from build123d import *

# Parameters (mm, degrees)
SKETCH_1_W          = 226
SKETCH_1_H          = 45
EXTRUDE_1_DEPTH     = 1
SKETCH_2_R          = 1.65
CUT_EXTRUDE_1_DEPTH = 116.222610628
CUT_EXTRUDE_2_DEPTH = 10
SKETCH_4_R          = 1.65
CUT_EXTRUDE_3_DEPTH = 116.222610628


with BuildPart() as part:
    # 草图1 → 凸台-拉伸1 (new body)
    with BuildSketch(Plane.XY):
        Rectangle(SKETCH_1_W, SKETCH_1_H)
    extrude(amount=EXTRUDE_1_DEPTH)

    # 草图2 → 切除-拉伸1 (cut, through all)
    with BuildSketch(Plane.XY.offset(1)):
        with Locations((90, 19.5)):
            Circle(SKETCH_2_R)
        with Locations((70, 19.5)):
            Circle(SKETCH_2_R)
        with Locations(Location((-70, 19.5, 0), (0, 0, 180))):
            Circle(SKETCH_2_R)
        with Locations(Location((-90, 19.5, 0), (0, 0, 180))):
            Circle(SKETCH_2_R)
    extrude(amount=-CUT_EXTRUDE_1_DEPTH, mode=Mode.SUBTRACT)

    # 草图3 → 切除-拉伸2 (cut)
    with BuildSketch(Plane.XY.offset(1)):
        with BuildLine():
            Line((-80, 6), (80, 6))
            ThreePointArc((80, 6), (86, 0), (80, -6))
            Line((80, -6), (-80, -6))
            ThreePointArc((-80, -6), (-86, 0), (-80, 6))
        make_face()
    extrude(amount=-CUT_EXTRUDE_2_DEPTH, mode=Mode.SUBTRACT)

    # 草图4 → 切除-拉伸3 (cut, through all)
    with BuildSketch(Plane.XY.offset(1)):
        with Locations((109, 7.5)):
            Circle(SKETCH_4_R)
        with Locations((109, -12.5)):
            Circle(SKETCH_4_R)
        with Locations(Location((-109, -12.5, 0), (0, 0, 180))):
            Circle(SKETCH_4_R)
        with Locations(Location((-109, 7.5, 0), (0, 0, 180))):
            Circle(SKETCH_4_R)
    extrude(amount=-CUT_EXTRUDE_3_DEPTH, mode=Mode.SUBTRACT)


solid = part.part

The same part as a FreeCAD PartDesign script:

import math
import FreeCAD as App
import Part
import Sketcher
Q = App.Units.Quantity

doc = App.newDocument("Part")
body = doc.addObject("PartDesign::Body", "Body")

sketch1 = body.newObject("Sketcher::SketchObject", "Sketch")
sketch1.AttachmentSupport = (doc.getObject("XY_Plane"), [""])
sketch1.MapMode = "FlatFace"
sketch1.addGeometry([
    Part.LineSegment(App.Vector(-113, 22, 0), App.Vector(-113, -22, 0)),
    Part.LineSegment(App.Vector(-113, -22, 0), App.Vector(113, -22, 0)),
    Part.LineSegment(App.Vector(113, -22, 0), App.Vector(113, 22, 0)),
    Part.LineSegment(App.Vector(113, 22, 0), App.Vector(-113, 22, 0)),
], False)
sketch1.addConstraint([
    Sketcher.Constraint("Coincident", 0, 2, 1, 1),
    Sketcher.Constraint("Coincident", 1, 2, 2, 1),
    Sketcher.Constraint("Coincident", 2, 2, 3, 1),
    Sketcher.Constraint("Coincident", 3, 2, 0, 1),
    Sketcher.Constraint("Vertical", 0),
    Sketcher.Constraint("Horizontal", 1),
    Sketcher.Constraint("Vertical", 2),
    Sketcher.Constraint("Horizontal", 3),
    Sketcher.Constraint("Symmetric", 0, 2, 2, 2, -1, 1),
    Sketcher.Constraint("DistanceX", 1, 1, 1, 2, Q("226 mm")),
    Sketcher.Constraint("DistanceY", 0, 2, 0, 1, Q("45 mm")),
])
pad1 = body.newObject("PartDesign::Pad", "Pad")
pad1.Profile = sketch1
pad1.Length = 1

sketch2 = body.newObject("Sketcher::SketchObject", "Sketch001")
sketch2.AttachmentSupport = (doc.getObject("XY_Plane"), [""])
sketch2.MapMode = "FlatFace"
sketch2.AttachmentOffset = App.Placement(App.Vector(0, 0, 1), App.Rotation())
sketch2.addGeometry([
    Part.Circle(App.Vector(90, 19.5, 0), App.Vector(0, 0, 1), 1.6),
    Part.Circle(App.Vector(70, 19.5, 0), App.Vector(0, 0, 1), 1.6),
    Part.Circle(App.Vector(-70, 19.5, 0), App.Vector(0, 0, 1), 1.6),
    Part.Circle(App.Vector(-90, 19.5, 0), App.Vector(0, 0, 1), 1.6),
], False)
sketch2.addConstraint([
    Sketcher.Constraint("Equal", 0, 1),
    Sketcher.Constraint("Equal", 1, 2),
    Sketcher.Constraint("Equal", 2, 3),
    Sketcher.Constraint("Symmetric", 1, 3, 2, 3, -2),
    Sketcher.Constraint("Symmetric", 0, 3, 3, 3, -2),
    Sketcher.Constraint("Horizontal", 0, 3, 1, 3),
    Sketcher.Constraint("Diameter", 0, Q("3.3 mm")),
    Sketcher.Constraint("DistanceX", -1, 1, 0, 3, Q("90 mm")),
    Sketcher.Constraint("DistanceX", -1, 1, 1, 3, Q("70 mm")),
    Sketcher.Constraint("DistanceY", -1, 1, 0, 3, Q("19.5 mm")),
])
pocket1 = body.newObject("PartDesign::Pocket", "Pocket")
pocket1.Profile = sketch2
pocket1.Type = "ThroughAll"

sketch3 = body.newObject("Sketcher::SketchObject", "Sketch002")
sketch3.AttachmentSupport = (doc.getObject("XY_Plane"), [""])
sketch3.MapMode = "FlatFace"
sketch3.AttachmentOffset = App.Placement(App.Vector(0, 0, 1), App.Rotation())
sketch3.addGeometry([
    Part.LineSegment(App.Vector(80, 6, 0), App.Vector(-80, 6, 0)),
    Part.ArcOfCircle(Part.Circle(App.Vector(-80, 0, 0), App.Vector(0, 0, 1), 6), math.radians(90), math.radians(270)),
    Part.LineSegment(App.Vector(-80, -6, 0), App.Vector(80, -6, 0)),
    Part.ArcOfCircle(Part.Circle(App.Vector(80, 0, 0), App.Vector(0, 0, 1), 6), math.radians(-90), math.radians(90)),
], False)
sketch3.addConstraint([
    Sketcher.Constraint("Tangent", 0, 2, 1, 1),
    Sketcher.Constraint("Tangent", 1, 2, 2, 1),
    Sketcher.Constraint("Tangent", 2, 2, 3, 1),
    Sketcher.Constraint("Tangent", 3, 2, 0, 1),
    Sketcher.Constraint("Horizontal", 0),
    Sketcher.Constraint("Horizontal", 2),
    Sketcher.Constraint("Symmetric", 1, 3, 3, 3, -1, 1),
    Sketcher.Constraint("Radius", 1, Q("6 mm")),
    Sketcher.Constraint("DistanceX", 0, 2, 0, 1, Q("160 mm")),
])
pocket2 = body.newObject("PartDesign::Pocket", "Pocket001")
pocket2.Profile = sketch3
pocket2.Length = 10

sketch4 = body.newObject("Sketcher::SketchObject", "Sketch003")
sketch4.AttachmentSupport = (doc.getObject("XY_Plane"), [""])
sketch4.MapMode = "FlatFace"
sketch4.AttachmentOffset = App.Placement(App.Vector(0, 0, 1), App.Rotation())
sketch4.addGeometry([
    Part.Circle(App.Vector(109, 7.5, 0), App.Vector(0, 0, 1), 1.6),
    Part.Circle(App.Vector(109, -12.5, 0), App.Vector(0, 0, 1), 1.6),
    Part.Circle(App.Vector(-109, -12.5, 0), App.Vector(0, 0, 1), 1.6),
    Part.Circle(App.Vector(-109, 7.5, 0), App.Vector(0, 0, 1), 1.6),
], False)
sketch4.addConstraint([
    Sketcher.Constraint("Equal", 0, 1),
    Sketcher.Constraint("Equal", 1, 2),
    Sketcher.Constraint("Equal", 2, 3),
    Sketcher.Constraint("Symmetric", 1, 3, 2, 3, -2),
    Sketcher.Constraint("Symmetric", 0, 3, 3, 3, -2),
    Sketcher.Constraint("Vertical", 0, 3, 1, 3),
    Sketcher.Constraint("Diameter", 0, Q("3.3 mm")),
    Sketcher.Constraint("DistanceX", -1, 1, 0, 3, Q("109 mm")),
    Sketcher.Constraint("DistanceY", 1, 3, 0, 3, Q("20 mm")),
    Sketcher.Constraint("DistanceY", -1, 1, 0, 3, Q("7.5 mm")),
])
pocket3 = body.newObject("PartDesign::Pocket", "Pocket002")
pocket3.Profile = sketch4
pocket3.Type = "ThroughAll"

doc.recompute()
